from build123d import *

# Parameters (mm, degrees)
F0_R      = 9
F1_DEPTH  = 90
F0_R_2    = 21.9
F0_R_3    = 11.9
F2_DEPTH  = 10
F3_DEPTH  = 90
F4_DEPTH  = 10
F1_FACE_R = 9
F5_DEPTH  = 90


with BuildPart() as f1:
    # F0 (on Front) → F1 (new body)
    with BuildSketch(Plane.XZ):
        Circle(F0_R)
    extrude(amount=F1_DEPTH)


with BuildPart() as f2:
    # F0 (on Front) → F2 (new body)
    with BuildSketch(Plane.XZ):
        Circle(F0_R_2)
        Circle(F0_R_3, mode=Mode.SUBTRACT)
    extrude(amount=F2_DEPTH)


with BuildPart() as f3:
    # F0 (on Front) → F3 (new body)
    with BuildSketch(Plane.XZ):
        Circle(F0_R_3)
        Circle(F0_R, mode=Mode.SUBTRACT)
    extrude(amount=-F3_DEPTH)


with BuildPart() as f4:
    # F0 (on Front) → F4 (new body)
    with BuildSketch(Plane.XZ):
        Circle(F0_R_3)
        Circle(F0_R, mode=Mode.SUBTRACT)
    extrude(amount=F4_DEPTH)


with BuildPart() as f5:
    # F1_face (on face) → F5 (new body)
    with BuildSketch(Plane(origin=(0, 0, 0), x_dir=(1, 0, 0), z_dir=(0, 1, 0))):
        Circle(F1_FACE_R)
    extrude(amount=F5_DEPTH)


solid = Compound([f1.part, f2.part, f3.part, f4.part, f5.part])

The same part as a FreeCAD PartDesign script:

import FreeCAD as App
import Part
import Sketcher

V = App.Vector
Q = App.Units.Quantity

doc = App.newDocument("Part")
params = doc.addObject("Spreadsheet::Sheet", "Params")
for row, (alias, value) in enumerate([
    ("sketch1_diameter", "18 mm"),
    ("pad1_length", "90 mm"),
    ("sketch2_diameter", "43.8 mm"),
    ("sketch2_diameter2", "23.8 mm"),
    ("pad2_length", "10 mm"),
    ("sketch3_diameter", "18 mm"),
    ("sketch3_diameter2", "23.8 mm"),
    ("pad3_length", "90 mm"),
    ("sketch4_diameter", "18 mm"),
    ("sketch4_diameter2", "23.8 mm"),
    ("pad4_length", "10 mm"),
    ("sketch5_diameter", "18 mm"),
    ("pad5_length", "90 mm"),
], start=1):
    params.set(f"A{row}", alias)
    params.set(f"B{row}", "=" + value)
    params.setAlias(f"B{row}", alias)

body = doc.addObject("PartDesign::Body", "Body")

sketch1 = body.newObject("Sketcher::SketchObject", "Sketch")
sketch1.AttachmentSupport = (doc.getObject("XZ_Plane"), [""])
sketch1.MapMode = "FlatFace"
sketch1.addGeometry(Part.Circle(V(0, 0, 0), V(0, 0, 1), 9), False)
sketch1.addConstraint(Sketcher.Constraint("Coincident", 0, 3, -1, 1))
sketch1.addConstraint(Sketcher.Constraint("Diameter", 0, Q("18 mm")))
sketch1.setExpression("Constraints[1]", "Params.sketch1_diameter")
pad1 = body.newObject("PartDesign::Pad", "Pad")
pad1.Profile = sketch1
pad1.setExpression("Length", "Params.pad1_length")
body2 = doc.addObject("PartDesign::Body", "Body001")

sketch2 = body2.newObject("Sketcher::SketchObject", "Sketch001")
sketch2.AttachmentSupport = (doc.getObject("XZ_Plane001"), [""])
sketch2.MapMode = "FlatFace"
sketch2.addGeometry(Part.Circle(V(0, 0, 0), V(0, 0, 1), 22), False)
sketch2.addGeometry(Part.Circle(V(0, 0, 0), V(0, 0, 1), 12), False)
sketch2.addConstraint(Sketcher.Constraint("Coincident", 0, 3, -1, 1))
sketch2.addConstraint(Sketcher.Constraint("Coincident", 1, 3, -1, 1))
sketch2.addConstraint(Sketcher.Constraint("Diameter", 0, Q("43.8 mm")))
sketch2.addConstraint(Sketcher.Constraint("Diameter", 1, Q("23.8 mm")))
sketch2.setExpression("Constraints[2]", "Params.sketch2_diameter")
sketch2.setExpression("Constraints[3]", "Params.sketch2_diameter2")
pad2 = body2.newObject("PartDesign::Pad", "Pad001")
pad2.Profile = sketch2
pad2.setExpression("Length", "Params.pad2_length")
body3 = doc.addObject("PartDesign::Body", "Body002")

sketch3 = body3.newObject("Sketcher::SketchObject", "Sketch002")
sketch3.AttachmentSupport = (doc.getObject("XZ_Plane002"), [""])
sketch3.MapMode = "FlatFace"
sketch3.addGeometry(Part.Circle(V(0, 0, 0), V(0, 0, 1), 12), False)
sketch3.addGeometry(Part.Circle(V(0, 0, 0), V(0, 0, 1), 9), False)
sketch3.addConstraint(Sketcher.Constraint("Coincident", 0, 3, -1, 1))
sketch3.addConstraint(Sketcher.Constraint("Coincident", 1, 3, -1, 1))
sketch3.addConstraint(Sketcher.Constraint("Diameter", 1, Q("18 mm")))
sketch3.addConstraint(Sketcher.Constraint("Diameter", 0, Q("23.8 mm")))
sketch3.setExpression("Constraints[2]", "Params.sketch3_diameter")
sketch3.setExpression("Constraints[3]", "Params.sketch3_diameter2")
pad3 = body3.newObject("PartDesign::Pad", "Pad002")
pad3.Profile = sketch3
pad3.setExpression("Length", "Params.pad3_length")
pad3.Reversed = True
body4 = doc.addObject("PartDesign::Body", "Body003")

sketch4 = body4.newObject("Sketcher::SketchObject", "Sketch003")
sketch4.AttachmentSupport = (doc.getObject("XZ_Plane003"), [""])
sketch4.MapMode = "FlatFace"
sketch4.addGeometry(Part.Circle(V(0, 0, 0), V(0, 0, 1), 12), False)
sketch4.addGeometry(Part.Circle(V(0, 0, 0), V(0, 0, 1), 9), False)
sketch4.addConstraint(Sketcher.Constraint("Coincident", 0, 3, -1, 1))
sketch4.addConstraint(Sketcher.Constraint("Coincident", 1, 3, -1, 1))
sketch4.addConstraint(Sketcher.Constraint("Diameter", 1, Q("18 mm")))
sketch4.addConstraint(Sketcher.Constraint("Diameter", 0, Q("23.8 mm")))
sketch4.setExpression("Constraints[2]", "Params.sketch4_diameter")
sketch4.setExpression("Constraints[3]", "Params.sketch4_diameter2")
pad4 = body4.newObject("PartDesign::Pad", "Pad003")
pad4.Profile = sketch4
pad4.setExpression("Length", "Params.pad4_length")
body5 = doc.addObject("PartDesign::Body", "Body004")

sketch5 = body5.newObject("Sketcher::SketchObject", "Sketch004")
sketch5.AttachmentSupport = (doc.getObject("XZ_Plane004"), [""])
sketch5.MapMode = "FlatFace"
sketch5.addGeometry(Part.Circle(V(0, 0, 0), V(0, 0, 1), 9), False)
sketch5.addConstraint(Sketcher.Constraint("Coincident", 0, 3, -1, 1))
sketch5.addConstraint(Sketcher.Constraint("Diameter", 0, Q("18 mm")))
sketch5.setExpression("Constraints[1]", "Params.sketch5_diameter")
pad5 = body5.newObject("PartDesign::Pad", "Pad004")
pad5.Profile = sketch5
pad5.setExpression("Length", "Params.pad5_length")
pad5.Reversed = True

doc.recompute()
